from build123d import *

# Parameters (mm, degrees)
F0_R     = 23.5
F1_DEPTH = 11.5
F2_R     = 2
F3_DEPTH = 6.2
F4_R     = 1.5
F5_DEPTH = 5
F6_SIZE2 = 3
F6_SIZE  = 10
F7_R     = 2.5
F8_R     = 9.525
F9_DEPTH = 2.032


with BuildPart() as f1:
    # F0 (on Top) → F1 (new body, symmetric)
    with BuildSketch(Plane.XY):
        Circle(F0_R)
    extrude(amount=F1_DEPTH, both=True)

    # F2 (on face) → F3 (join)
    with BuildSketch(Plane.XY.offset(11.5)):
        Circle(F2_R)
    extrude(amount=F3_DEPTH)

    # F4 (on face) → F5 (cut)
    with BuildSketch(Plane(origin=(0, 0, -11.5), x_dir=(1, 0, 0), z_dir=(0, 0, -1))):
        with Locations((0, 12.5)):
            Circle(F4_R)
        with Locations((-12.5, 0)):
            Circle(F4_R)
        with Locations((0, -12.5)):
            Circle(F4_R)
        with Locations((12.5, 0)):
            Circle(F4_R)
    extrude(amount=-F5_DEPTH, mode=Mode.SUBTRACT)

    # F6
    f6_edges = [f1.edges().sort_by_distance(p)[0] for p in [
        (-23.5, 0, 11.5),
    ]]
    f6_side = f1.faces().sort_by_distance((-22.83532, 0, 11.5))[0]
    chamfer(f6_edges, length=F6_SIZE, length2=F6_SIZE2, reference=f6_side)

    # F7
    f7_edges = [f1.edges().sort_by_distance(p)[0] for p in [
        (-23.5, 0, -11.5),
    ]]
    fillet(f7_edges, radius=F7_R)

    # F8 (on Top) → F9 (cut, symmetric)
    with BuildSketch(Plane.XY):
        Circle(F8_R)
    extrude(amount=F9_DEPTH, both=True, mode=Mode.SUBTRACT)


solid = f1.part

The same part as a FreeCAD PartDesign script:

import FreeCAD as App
import Part
import Sketcher

V = App.Vector


def edges_at(feature, points):
    """Names of the edges that pass closest to the given points."""
    edges = feature.Shape.Edges
    near = lambda p: min(range(len(edges)), key=lambda i: edges[i].distToShape(Part.Vertex(*p))[0])
    return sorted({f"Edge{near(p) + 1}" for p in points})

doc = App.newDocument("Part")
body = doc.addObject("PartDesign::Body", "Body")

# Sketch on XY plane
sketch1 = body.newObject("Sketcher::SketchObject", "Sketch")
sketch1.AttachmentSupport = (doc.getObject("XY_Plane"), [""])
sketch1.MapMode = "FlatFace"
sketch1.addGeometry(Part.Circle(V(0, 0, 0), V(0, 0, 1), 23.5), False)
sketch1.addConstraint([
    Sketcher.Constraint("Coincident", 0, 3, -1, 1),
    Sketcher.Constraint("Diameter", 0, 47.0),
])
pad1 = body.newObject("PartDesign::Pad", "Pad")
pad1.Profile = sketch1
pad1.Length = 23
pad1.Midplane = True

# Sketch on XY plane
sketch2 = body.newObject("Sketcher::SketchObject", "Sketch001")
sketch2.AttachmentSupport = (doc.getObject("XY_Plane"), [""])
sketch2.MapMode = "FlatFace"
sketch2.AttachmentOffset = App.Placement(V(0, 0, 11.5), App.Rotation())
sketch2.addGeometry(Part.Circle(V(0, 0, 0), V(0, 0, 1), 2), False)
sketch2.addConstraint([
    Sketcher.Constraint("Coincident", 0, 3, -1, 1),
    Sketcher.Constraint("Diameter", 0, 4.0),
])
pad2 = body.newObject("PartDesign::Pad", "Pad001")
pad2.Profile = sketch2
pad2.Length = 6.2

# Sketch on XY plane
sketch3 = body.newObject("Sketcher::SketchObject", "Sketch002")
sketch3.AttachmentSupport = (doc.getObject("XY_Plane"), [""])
sketch3.MapMode = "FlatFace"
sketch3.AttachmentOffset = App.Placement(V(0, 0, -11.5), App.Rotation())
sketch3.addGeometry([
    Part.Circle(V(0, -12.5, 0), V(0, 0, 1), 1.5),
    Part.Circle(V(-12.5, 0, 0), V(0, 0, 1), 1.5),
    Part.Circle(V(0, 12.5, 0), V(0, 0, 1), 1.5),
    Part.Circle(V(12.5, 0, 0), V(0, 0, 1), 1.5),
], False)
sketch3.addConstraint([
    Sketcher.Constraint("Equal", 0, 1),
    Sketcher.Constraint("Equal", 1, 2),
    Sketcher.Constraint("Equal", 2, 3),
    Sketcher.Constraint("Symmetric", 0, 3, 2, 3, -1, 1),
    Sketcher.Constraint("Symmetric", 1, 3, 3, 3, -1, 1),
    Sketcher.Constraint("PointOnObject", 0, 3, -2),
    Sketcher.Constraint("PointOnObject", 1, 3, -1),
    Sketcher.Constraint("Diameter", 0, 3.0),
    Sketcher.Constraint("DistanceY", 0, 3, 2, 3, 25.0),
    Sketcher.Constraint("DistanceX", 1, 3, 3, 3, 25.0),
])
pocket1 = body.newObject("PartDesign::Pocket", "Pocket")
pocket1.Profile = sketch3
pocket1.Length = 5
pocket1.Reversed = True
doc.recompute()

chamfer = body.newObject("PartDesign::Chamfer", "Chamfer")
chamfer.Base = (pocket1, edges_at(pocket1, [(-23.5, 0, 11.5)]))
chamfer.ChamferType = "Two distances"
chamfer.Size = 10
chamfer.Size2 = 3
chamfer.FlipDirection = True
doc.recompute()

fillet = body.newObject("PartDesign::Fillet", "Fillet")
fillet.Base = (chamfer, edges_at(chamfer, [(-23.5, 0, -11.5)]))
fillet.Radius = 2.5

# Sketch on XY plane
sketch4 = body.newObject("Sketcher::SketchObject", "Sketch003")
sketch4.AttachmentSupport = (doc.getObject("XY_Plane"), [""])
sketch4.MapMode = "FlatFace"
sketch4.addGeometry(Part.Circle(V(0, 0, 0), V(0, 0, 1), 9.525), False)
sketch4.addConstraint([
    Sketcher.Constraint("Coincident", 0, 3, -1, 1),
    Sketcher.Constraint("Diameter", 0, 19.05),
])
pocket2 = body.newObject("PartDesign::Pocket", "Pocket001")
pocket2.Profile = sketch4
pocket2.Length = 4.064
pocket2.Midplane = True

doc.recompute()
